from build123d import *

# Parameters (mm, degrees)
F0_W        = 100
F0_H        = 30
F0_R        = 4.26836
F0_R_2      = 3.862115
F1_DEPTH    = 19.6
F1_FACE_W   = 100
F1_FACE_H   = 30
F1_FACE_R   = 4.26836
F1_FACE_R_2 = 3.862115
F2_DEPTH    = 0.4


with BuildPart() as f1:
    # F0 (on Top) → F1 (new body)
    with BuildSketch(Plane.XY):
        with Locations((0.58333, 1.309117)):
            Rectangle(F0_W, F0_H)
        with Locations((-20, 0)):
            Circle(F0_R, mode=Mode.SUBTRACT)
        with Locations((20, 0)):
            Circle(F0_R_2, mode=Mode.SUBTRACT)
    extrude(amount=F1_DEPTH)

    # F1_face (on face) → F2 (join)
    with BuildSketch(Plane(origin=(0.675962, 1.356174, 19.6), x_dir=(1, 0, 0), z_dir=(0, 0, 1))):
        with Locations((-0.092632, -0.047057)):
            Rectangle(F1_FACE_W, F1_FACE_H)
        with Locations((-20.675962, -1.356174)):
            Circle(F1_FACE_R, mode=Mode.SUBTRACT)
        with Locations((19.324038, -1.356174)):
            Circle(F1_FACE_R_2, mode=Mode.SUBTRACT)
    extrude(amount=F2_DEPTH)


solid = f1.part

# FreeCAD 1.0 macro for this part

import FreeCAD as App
import Part
import Sketcher
Q = App.Units.Quantity

doc = App.newDocument("Part")
body = doc.addObject("PartDesign::Body", "Body")

sketch1 = body.newObject("Sketcher::SketchObject", "Sketch")
sketch1.AttachmentSupport = (doc.getObject("XY_Plane"), [""])
sketch1.MapMode = "FlatFace"
sketch1.addGeometry(Part.LineSegment(App.Vector(-49.4, 16.3, 0), App.Vector(-49.4, -13.7, 0)), False)
sketch1.addGeometry(Part.LineSegment(App.Vector(-49.4, -13.7, 0), App.Vector(50.6, -13.7, 0)), False)
sketch1.addGeometry(Part.LineSegment(App.Vector(50.6, -13.7, 0), App.Vector(50.6, 16.3, 0)), False)
sketch1.addGeometry(Part.LineSegment(App.Vector(50.6, 16.3, 0), App.Vector(-49.4, 16.3, 0)), False)
sketch1.addGeometry(Part.Circle(App.Vector(-20, 0, 0), App.Vector(0, 0, 1), 4.3), False)
sketch1.addGeometry(Part.Circle(App.Vector(20, 0, 0), App.Vector(0, 0, 1), 3.9), False)
sketch1.addConstraint(Sketcher.Constraint("Coincident", 0, 2, 1, 1))
sketch1.addConstraint(Sketcher.Constraint("Coincident", 1, 2, 2, 1))
sketch1.addConstraint(Sketcher.Constraint("Coincident", 2, 2, 3, 1))
sketch1.addConstraint(Sketcher.Constraint("Coincident", 3, 2, 0, 1))
sketch1.addConstraint(Sketcher.Constraint("Vertical", 0))
sketch1.addConstraint(Sketcher.Constraint("Horizontal", 1))
sketch1.addConstraint(Sketcher.Constraint("Vertical", 2))
sketch1.addConstraint(Sketcher.Constraint("Horizontal", 3))
sketch1.addConstraint(Sketcher.Constraint("Symmetric", 4, 3, 5, 3, -1, 1))
sketch1.addConstraint(Sketcher.Constraint("PointOnObject", 4, 3, -1))
sketch1.addConstraint(Sketcher.Constraint("DistanceX", 1, 1, 1, 2, Q("100 mm")))
sketch1.addConstraint(Sketcher.Constraint("DistanceY", 0, 2, 0, 1, Q("30 mm")))
sketch1.addConstraint(Sketcher.Constraint("DistanceX", 4, 3, -1, 1, Q("20 mm")))
sketch1.addConstraint(Sketcher.Constraint("Diameter", 4, Q("8.53672 mm")))
sketch1.addConstraint(Sketcher.Constraint("Diameter", 5, Q("7.72423 mm")))
sketch1.addConstraint(Sketcher.Constraint("DistanceX", 0, 2, -1, 1, Q("49.41667 mm")))
sketch1.addConstraint(Sketcher.Constraint("DistanceY", 0, 2, -1, 1, Q("13.690883 mm")))
pad1 = body.newObject("PartDesign::Pad", "Pad")
pad1.Profile = sketch1
pad1.Length = 19.6

sketch2 = body.newObject("Sketcher::SketchObject", "Sketch001")
sketch2.AttachmentSupport = (doc.getObject("XY_Plane"), [""])
sketch2.MapMode = "FlatFace"
sketch2.AttachmentOffset = App.Placement(App.Vector(0, 0, 19.6), App.Rotation())
sketch2.addGeometry(Part.LineSegment(App.Vector(-49.4, 16.3, 0), App.Vector(-49.4, -13.7, 0)), False)
sketch2.addGeometry(Part.LineSegment(App.Vector(-49.4, -13.7, 0), App.Vector(50.6, -13.7, 0)), False)
sketch2.addGeometry(Part.LineSegment(App.Vector(50.6, -13.7, 0), App.Vector(50.6, 16.3, 0)), False)
sketch2.addGeometry(Part.LineSegment(App.Vector(50.6, 16.3, 0), App.Vector(-49.4, 16.3, 0)), False)
sketch2.addGeometry(Part.Circle(App.Vector(-20, 0, 0), App.Vector(0, 0, 1), 4.3), False)
sketch2.addGeometry(Part.Circle(App.Vector(20, 0, 0), App.Vector(0, 0, 1), 3.9), False)
sketch2.addConstraint(Sketcher.Constraint("Coincident", 0, 2, 1, 1))
sketch2.addConstraint(Sketcher.Constraint("Coincident", 1, 2, 2, 1))
sketch2.addConstraint(Sketcher.Constraint("Coincident", 2, 2, 3, 1))
sketch2.addConstraint(Sketcher.Constraint("Coincident", 3, 2, 0, 1))
sketch2.addConstraint(Sketcher.Constraint("Vertical", 0))
sketch2.addConstraint(Sketcher.Constraint("Horizontal", 1))
sketch2.addConstraint(Sketcher.Constraint("Vertical", 2))
sketch2.addConstraint(Sketcher.Constraint("Horizontal", 3))
sketch2.addConstraint(Sketcher.Constraint("Symmetric", 4, 3, 5, 3, -1, 1))
sketch2.addConstraint(Sketcher.Constraint("PointOnObject", 4, 3, -1))
sketch2.addConstraint(Sketcher.Constraint("DistanceX", 1, 1, 1, 2, Q("100 mm")))
sketch2.addConstraint(Sketcher.Constraint("DistanceY", 0, 2, 0, 1, Q("30 mm")))
sketch2.addConstraint(Sketcher.Constraint("DistanceX", 4, 3, -1, 1, Q("20 mm")))
sketch2.addConstraint(Sketcher.Constraint("Diameter", 4, Q("8.53672 mm")))
sketch2.addConstraint(Sketcher.Constraint("Diameter", 5, Q("7.72423 mm")))
sketch2.addConstraint(Sketcher.Constraint("DistanceX", 0, 2, -1, 1, Q("49.41667 mm")))
sketch2.addConstraint(Sketcher.Constraint("DistanceY", 0, 2, -1, 1, Q("13.690883 mm")))
pad2 = body.newObject("PartDesign::Pad", "Pad001")
pad2.Profile = sketch2
pad2.Length = 0.4

doc.recompute()
